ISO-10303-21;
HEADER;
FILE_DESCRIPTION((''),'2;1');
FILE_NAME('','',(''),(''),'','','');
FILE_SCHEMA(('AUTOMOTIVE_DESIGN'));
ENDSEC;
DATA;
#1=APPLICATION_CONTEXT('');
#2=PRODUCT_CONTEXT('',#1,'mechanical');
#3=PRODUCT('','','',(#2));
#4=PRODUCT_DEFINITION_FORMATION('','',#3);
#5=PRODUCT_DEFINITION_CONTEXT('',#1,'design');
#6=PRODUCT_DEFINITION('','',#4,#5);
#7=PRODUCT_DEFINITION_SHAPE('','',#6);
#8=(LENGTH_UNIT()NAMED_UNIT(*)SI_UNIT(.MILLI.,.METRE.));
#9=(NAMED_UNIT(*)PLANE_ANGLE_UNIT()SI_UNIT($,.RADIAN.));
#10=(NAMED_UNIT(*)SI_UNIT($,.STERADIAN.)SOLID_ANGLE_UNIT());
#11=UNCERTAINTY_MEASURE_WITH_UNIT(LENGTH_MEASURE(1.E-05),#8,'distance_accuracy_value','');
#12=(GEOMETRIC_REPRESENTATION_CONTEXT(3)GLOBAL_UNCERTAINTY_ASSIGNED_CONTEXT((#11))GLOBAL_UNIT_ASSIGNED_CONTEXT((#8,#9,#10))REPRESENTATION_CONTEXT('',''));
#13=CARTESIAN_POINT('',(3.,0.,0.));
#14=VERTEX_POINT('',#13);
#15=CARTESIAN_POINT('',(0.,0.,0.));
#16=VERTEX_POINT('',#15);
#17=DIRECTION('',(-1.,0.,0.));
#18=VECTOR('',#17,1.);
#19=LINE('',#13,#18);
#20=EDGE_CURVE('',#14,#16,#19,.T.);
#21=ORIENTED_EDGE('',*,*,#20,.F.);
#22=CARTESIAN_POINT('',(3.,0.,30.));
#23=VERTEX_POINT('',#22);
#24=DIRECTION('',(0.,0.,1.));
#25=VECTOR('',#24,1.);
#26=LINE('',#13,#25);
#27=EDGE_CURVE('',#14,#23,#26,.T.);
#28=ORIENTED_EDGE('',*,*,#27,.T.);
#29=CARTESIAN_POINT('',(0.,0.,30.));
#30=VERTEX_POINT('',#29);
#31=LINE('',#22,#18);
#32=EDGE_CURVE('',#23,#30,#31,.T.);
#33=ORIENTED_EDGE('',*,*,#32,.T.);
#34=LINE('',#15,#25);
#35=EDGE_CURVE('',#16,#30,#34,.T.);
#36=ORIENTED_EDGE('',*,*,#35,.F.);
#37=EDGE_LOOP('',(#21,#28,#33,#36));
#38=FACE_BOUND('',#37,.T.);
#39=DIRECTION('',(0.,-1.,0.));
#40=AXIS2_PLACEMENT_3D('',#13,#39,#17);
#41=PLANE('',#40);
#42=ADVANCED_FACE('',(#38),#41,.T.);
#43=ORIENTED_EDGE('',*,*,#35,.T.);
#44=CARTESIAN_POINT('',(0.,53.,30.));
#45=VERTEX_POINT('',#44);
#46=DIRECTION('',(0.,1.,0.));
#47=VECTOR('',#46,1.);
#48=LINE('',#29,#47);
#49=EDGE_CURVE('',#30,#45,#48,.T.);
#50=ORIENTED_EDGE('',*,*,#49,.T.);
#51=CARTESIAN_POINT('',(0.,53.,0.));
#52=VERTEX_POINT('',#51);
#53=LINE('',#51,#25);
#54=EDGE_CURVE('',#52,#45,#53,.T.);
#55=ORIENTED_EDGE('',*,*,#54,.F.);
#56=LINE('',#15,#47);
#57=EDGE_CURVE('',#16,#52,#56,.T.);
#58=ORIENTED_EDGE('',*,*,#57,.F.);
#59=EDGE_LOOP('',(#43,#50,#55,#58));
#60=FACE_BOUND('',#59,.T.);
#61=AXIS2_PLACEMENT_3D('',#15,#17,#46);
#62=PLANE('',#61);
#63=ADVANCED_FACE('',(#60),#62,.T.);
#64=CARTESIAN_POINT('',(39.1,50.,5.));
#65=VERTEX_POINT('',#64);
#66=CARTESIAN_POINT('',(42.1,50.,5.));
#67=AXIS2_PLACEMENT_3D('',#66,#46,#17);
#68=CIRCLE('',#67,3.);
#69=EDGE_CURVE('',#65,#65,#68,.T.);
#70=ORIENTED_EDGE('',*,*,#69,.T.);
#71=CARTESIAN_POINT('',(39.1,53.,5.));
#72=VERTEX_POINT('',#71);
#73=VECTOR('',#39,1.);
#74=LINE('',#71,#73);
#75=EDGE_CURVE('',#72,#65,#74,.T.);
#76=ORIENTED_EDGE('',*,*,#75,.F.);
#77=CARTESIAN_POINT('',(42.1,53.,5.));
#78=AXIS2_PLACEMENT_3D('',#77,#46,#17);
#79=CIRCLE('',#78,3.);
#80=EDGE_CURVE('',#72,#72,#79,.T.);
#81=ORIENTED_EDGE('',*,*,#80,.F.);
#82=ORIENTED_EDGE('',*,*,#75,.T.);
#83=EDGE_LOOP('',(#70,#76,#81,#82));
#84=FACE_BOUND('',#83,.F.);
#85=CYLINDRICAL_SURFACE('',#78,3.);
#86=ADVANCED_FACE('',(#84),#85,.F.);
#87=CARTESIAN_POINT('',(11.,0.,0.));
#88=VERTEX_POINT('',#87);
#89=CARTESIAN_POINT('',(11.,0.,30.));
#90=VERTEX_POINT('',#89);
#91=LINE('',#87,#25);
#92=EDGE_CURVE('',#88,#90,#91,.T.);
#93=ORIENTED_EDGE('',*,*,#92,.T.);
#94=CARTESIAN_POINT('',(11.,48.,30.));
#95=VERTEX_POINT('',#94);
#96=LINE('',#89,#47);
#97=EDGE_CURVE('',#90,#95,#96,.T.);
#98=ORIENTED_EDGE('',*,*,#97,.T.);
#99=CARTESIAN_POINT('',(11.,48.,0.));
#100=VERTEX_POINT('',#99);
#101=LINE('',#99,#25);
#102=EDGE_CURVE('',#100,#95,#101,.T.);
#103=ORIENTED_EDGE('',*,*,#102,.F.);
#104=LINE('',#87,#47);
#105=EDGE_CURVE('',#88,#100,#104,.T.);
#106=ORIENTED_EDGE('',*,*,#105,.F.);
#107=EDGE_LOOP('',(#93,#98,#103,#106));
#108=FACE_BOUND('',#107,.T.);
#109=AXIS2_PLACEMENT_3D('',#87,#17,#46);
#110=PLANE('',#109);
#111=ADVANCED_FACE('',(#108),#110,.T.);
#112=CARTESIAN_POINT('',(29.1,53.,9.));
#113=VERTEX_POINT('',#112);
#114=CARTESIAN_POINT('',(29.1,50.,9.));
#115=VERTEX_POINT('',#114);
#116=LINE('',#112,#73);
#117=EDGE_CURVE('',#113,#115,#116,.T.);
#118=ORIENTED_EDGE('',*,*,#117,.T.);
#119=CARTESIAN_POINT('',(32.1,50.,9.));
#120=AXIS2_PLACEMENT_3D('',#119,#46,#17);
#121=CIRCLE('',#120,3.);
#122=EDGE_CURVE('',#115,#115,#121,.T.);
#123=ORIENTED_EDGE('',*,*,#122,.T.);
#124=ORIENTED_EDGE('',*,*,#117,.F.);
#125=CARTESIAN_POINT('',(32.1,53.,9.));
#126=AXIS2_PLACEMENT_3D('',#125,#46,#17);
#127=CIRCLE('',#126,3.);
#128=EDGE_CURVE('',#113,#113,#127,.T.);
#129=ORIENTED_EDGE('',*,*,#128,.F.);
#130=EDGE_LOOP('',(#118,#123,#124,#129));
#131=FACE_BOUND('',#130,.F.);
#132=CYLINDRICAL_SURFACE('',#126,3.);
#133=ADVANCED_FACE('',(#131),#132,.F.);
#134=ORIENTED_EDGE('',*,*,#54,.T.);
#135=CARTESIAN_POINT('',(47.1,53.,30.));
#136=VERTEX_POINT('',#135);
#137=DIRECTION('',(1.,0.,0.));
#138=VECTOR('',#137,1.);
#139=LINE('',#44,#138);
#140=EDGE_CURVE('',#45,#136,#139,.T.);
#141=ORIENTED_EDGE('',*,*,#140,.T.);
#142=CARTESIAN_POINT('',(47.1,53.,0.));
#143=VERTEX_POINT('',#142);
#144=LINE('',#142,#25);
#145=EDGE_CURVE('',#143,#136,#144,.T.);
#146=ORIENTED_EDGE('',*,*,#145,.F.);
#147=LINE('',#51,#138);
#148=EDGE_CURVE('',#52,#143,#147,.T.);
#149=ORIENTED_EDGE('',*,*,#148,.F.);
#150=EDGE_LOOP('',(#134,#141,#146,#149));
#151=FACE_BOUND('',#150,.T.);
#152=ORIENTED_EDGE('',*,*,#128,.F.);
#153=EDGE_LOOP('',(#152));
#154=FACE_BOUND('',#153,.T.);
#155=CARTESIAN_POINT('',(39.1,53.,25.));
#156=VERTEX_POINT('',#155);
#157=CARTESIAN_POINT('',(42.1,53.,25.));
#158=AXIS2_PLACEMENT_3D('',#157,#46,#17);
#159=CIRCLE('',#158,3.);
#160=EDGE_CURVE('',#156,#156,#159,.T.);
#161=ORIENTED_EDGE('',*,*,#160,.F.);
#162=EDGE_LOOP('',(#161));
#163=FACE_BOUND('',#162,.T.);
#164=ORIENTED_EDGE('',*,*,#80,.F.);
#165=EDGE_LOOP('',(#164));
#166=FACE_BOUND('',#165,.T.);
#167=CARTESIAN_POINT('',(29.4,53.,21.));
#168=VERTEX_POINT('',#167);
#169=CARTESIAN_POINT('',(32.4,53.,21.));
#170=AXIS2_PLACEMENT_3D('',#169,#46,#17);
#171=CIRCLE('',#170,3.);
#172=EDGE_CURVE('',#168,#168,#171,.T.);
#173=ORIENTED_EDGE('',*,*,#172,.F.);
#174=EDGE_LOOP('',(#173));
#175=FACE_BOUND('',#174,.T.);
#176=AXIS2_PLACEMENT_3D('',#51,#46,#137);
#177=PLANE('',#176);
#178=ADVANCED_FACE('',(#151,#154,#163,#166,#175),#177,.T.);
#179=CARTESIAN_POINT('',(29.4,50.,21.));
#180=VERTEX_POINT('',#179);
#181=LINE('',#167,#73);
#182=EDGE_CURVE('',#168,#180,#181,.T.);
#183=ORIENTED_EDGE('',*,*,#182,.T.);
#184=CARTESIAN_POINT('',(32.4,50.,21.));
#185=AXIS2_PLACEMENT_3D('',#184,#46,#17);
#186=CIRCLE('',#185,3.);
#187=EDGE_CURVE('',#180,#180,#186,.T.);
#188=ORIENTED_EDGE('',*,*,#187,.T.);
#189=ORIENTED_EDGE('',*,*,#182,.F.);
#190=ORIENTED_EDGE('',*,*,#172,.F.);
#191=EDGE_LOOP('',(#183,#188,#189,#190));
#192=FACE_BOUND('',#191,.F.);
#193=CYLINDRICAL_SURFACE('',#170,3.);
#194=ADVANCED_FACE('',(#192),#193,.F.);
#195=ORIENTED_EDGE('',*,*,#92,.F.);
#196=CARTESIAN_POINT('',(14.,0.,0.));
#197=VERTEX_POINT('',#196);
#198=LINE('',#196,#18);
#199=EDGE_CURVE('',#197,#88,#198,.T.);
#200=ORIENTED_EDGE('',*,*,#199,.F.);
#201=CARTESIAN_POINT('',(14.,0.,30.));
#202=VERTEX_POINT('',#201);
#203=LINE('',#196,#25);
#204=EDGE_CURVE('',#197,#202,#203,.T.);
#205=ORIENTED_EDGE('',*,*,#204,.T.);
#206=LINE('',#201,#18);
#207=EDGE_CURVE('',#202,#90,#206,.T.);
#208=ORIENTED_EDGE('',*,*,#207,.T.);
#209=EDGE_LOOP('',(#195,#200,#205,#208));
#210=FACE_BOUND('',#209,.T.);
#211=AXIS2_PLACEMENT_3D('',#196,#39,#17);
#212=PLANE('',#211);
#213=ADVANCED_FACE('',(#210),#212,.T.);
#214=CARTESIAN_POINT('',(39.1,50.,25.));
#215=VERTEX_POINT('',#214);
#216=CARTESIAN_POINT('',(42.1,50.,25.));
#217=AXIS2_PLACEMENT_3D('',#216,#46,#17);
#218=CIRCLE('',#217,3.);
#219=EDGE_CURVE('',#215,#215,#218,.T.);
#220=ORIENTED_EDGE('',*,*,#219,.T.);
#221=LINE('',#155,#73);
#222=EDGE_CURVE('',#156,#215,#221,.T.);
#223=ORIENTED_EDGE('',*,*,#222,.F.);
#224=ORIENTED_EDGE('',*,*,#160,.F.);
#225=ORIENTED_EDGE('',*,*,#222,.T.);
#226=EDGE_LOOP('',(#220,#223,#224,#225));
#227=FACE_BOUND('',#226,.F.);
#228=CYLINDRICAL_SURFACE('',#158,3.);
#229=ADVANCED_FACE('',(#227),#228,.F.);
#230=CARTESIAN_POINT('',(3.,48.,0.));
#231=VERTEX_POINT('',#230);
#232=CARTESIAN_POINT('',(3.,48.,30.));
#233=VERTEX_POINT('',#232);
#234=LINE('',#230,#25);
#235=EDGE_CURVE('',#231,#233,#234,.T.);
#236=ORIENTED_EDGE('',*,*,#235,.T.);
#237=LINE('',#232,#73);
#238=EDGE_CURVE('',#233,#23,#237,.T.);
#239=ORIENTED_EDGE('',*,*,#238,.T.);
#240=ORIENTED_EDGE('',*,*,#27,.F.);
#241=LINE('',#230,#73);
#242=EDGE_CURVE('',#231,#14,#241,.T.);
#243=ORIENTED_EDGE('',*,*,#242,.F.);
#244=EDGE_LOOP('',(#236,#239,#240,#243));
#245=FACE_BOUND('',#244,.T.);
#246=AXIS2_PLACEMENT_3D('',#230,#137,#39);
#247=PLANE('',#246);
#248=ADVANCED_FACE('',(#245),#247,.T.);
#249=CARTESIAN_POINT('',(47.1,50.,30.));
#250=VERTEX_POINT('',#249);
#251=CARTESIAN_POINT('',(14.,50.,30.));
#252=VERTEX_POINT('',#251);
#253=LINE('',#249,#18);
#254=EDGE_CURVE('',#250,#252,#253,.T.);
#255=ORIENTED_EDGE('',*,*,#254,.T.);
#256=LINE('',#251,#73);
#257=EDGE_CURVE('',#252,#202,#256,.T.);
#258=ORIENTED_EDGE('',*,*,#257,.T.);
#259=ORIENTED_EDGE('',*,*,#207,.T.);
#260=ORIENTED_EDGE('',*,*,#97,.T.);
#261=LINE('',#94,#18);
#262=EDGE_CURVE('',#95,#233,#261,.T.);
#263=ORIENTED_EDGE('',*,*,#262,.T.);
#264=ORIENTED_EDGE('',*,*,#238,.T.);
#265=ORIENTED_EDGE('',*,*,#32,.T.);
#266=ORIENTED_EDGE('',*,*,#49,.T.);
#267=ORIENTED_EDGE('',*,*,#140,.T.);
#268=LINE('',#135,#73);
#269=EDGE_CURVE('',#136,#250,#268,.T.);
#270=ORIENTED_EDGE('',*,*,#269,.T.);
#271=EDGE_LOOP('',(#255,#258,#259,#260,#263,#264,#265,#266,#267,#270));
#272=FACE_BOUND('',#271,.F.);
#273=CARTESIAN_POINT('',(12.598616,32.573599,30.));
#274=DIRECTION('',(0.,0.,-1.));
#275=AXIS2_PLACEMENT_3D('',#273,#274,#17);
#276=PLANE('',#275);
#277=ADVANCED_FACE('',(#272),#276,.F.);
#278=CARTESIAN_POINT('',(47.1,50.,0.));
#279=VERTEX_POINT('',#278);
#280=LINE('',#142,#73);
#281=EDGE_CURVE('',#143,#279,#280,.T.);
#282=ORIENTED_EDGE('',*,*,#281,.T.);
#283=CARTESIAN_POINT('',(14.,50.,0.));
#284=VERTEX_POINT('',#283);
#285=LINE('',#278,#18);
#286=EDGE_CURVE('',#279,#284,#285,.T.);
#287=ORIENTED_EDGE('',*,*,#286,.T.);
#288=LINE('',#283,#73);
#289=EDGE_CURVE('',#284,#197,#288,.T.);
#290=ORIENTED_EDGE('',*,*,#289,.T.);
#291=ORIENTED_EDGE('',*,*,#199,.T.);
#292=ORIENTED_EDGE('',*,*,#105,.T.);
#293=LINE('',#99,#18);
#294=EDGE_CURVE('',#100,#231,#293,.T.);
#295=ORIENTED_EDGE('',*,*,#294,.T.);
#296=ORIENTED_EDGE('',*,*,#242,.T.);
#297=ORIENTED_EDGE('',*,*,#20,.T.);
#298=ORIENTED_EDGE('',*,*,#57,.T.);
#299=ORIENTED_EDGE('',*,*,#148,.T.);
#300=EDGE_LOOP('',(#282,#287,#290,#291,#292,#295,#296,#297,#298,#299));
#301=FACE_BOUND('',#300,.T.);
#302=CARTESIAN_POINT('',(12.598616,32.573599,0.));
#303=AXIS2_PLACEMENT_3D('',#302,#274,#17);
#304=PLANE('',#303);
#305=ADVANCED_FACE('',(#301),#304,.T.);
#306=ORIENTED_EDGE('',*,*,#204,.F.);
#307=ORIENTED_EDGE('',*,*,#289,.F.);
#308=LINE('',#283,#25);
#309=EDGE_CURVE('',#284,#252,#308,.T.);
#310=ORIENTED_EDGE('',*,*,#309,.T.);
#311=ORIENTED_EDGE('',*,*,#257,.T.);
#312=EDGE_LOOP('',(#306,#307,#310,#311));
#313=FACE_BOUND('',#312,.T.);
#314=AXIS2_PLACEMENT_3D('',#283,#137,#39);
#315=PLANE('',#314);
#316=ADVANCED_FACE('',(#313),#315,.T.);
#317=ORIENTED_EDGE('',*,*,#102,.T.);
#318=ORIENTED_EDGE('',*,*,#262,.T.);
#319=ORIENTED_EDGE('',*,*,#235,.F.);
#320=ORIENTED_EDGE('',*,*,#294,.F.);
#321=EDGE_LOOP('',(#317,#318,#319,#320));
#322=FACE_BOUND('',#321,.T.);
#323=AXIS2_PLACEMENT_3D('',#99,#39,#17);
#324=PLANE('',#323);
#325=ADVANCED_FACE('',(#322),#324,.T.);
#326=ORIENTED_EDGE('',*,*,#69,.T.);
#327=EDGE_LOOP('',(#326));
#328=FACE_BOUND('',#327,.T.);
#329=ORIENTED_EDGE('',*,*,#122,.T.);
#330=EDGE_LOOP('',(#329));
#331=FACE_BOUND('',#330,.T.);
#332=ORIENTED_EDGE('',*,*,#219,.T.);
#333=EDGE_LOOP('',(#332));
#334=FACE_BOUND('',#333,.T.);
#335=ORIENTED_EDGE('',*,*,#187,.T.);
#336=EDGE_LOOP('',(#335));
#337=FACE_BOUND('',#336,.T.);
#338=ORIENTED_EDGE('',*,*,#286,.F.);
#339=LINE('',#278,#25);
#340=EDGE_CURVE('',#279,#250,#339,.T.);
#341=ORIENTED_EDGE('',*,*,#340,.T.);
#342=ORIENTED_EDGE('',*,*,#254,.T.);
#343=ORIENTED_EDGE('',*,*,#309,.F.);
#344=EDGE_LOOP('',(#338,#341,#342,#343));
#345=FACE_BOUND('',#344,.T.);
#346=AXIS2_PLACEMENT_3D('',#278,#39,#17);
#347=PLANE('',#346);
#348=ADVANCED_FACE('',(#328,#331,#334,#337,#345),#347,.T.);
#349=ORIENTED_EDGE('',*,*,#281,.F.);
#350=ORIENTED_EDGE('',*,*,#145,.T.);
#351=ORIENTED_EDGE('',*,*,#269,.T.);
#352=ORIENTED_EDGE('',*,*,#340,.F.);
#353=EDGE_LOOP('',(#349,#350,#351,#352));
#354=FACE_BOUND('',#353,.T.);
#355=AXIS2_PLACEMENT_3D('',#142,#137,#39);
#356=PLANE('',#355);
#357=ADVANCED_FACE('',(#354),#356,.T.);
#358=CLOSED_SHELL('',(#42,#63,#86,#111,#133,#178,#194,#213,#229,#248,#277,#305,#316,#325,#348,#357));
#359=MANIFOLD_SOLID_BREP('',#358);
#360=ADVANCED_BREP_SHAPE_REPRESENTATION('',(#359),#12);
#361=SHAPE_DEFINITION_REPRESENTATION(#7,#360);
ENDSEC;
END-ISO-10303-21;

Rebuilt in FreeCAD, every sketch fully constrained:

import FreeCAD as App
import Part
import Sketcher

V = App.Vector

doc = App.newDocument("Part")
body = doc.addObject("PartDesign::Body", "Body")

# Sketch on XY plane
sketch1 = doc.addObject("Sketcher::SketchObject", "Sketch")
body.addObject(sketch1)
sketch1.AttachmentSupport = (doc.XY_Plane, [""])
sketch1.MapMode = "FlatFace"
sketch1.addGeometry([
    Part.LineSegment(V(0, 53, 0), V(0, 0, 0)),  # 0
    Part.LineSegment(V(0, 0, 0), V(3, 0, 0)),  # 1
    Part.LineSegment(V(3, 0, 0), V(3, 48, 0)),  # 2
    Part.LineSegment(V(3, 48, 0), V(11, 48, 0)),  # 3
    Part.LineSegment(V(11, 48, 0), V(11, 0, 0)),  # 4
    Part.LineSegment(V(11, 0, 0), V(14, 0, 0)),  # 5
    Part.LineSegment(V(14, 0, 0), V(14, 50, 0)),  # 6
    Part.LineSegment(V(14, 50, 0), V(47.1, 50, 0)),  # 7
    Part.LineSegment(V(47.1, 50, 0), V(47.1, 53, 0)),  # 8
    Part.LineSegment(V(47.1, 53, 0), V(0, 53, 0)),  # 9
], False)
sketch1.addConstraint([
    Sketcher.Constraint("Coincident", 0, 2, 1, 1),
    Sketcher.Constraint("Coincident", 1, 2, 2, 1),
    Sketcher.Constraint("Coincident", 2, 2, 3, 1),
    Sketcher.Constraint("Coincident", 3, 2, 4, 1),
    Sketcher.Constraint("Coincident", 4, 2, 5, 1),
    Sketcher.Constraint("Coincident", 5, 2, 6, 1),
    Sketcher.Constraint("Coincident", 6, 2, 7, 1),
    Sketcher.Constraint("Coincident", 7, 2, 8, 1),
    Sketcher.Constraint("Coincident", 8, 2, 9, 1),
    Sketcher.Constraint("Coincident", 9, 2, 0, 1),
    Sketcher.Constraint("Vertical", 0),
    Sketcher.Constraint("Horizontal", 1),
    Sketcher.Constraint("Vertical", 2),
    Sketcher.Constraint("Horizontal", 3),
    Sketcher.Constraint("Vertical", 4),
    Sketcher.Constraint("Horizontal", 5),
    Sketcher.Constraint("Vertical", 6),
    Sketcher.Constraint("Horizontal", 7),
    Sketcher.Constraint("Vertical", 8),
    Sketcher.Constraint("Horizontal", 9),
    Sketcher.Constraint("Coincident", 0, 2, -1, 1),
    Sketcher.Constraint("PointOnObject", 4, 2, -1),
    Sketcher.Constraint("Equal", 1, 5),
    Sketcher.Constraint("Equal", 5, 8),
    Sketcher.Constraint("DistanceX", 1, 1, 1, 2, 3.0),
    Sketcher.Constraint("DistanceX", 3, 1, 3, 2, 8.0),
    Sketcher.Constraint("DistanceY", 0, 2, 0, 1, 53.0),
    Sketcher.Constraint("DistanceY", 2, 1, 2, 2, 48.0),
    Sketcher.Constraint("DistanceX", 7, 1, 7, 2, 33.1),
])
pad1 = doc.addObject("PartDesign::Pad", "Pad")
body.addObject(pad1)
pad1.Profile = sketch1
pad1.Length = 30

# Sketch on XZ plane
sketch2 = doc.addObject("Sketcher::SketchObject", "Sketch001")
body.addObject(sketch2)
sketch2.AttachmentSupport = (doc.XZ_Plane, [""])
sketch2.MapMode = "FlatFace"
sketch2.AttachmentOffset = App.Placement(V(0, 0, -53), App.Rotation())
sketch2.addGeometry([
    Part.Circle(V(32.1, 9, 0), V(0, 0, 1), 3),
    Part.Circle(V(42.1, 25, 0), V(0, 0, 1), 3),
    Part.Circle(V(42.1, 5, 0), V(0, 0, 1), 3),
    Part.Circle(V(32.4, 21, 0), V(0, 0, 1), 3),
], False)
sketch2.addConstraint([
    Sketcher.Constraint("Equal", 0, 1),
    Sketcher.Constraint("Equal", 1, 2),
    Sketcher.Constraint("Equal", 2, 3),
    Sketcher.Constraint("Vertical", 1, 3, 2, 3),
    Sketcher.Constraint("Diameter", 0, 6.0),
    Sketcher.Constraint("DistanceY", -1, 1, 0, 3, 9.0),
    Sketcher.Constraint("DistanceY", -1, 1, 1, 3, 25.0),
    Sketcher.Constraint("DistanceY", -1, 1, 2, 3, 5.0),
    Sketcher.Constraint("DistanceY", -1, 1, 3, 3, 21.0),
    Sketcher.Constraint("DistanceX", 0, 3, 1, 3, 10.0),
    Sketcher.Constraint("DistanceX", -1, 1, 0, 3, 32.1),
    Sketcher.Constraint("DistanceX", -1, 1, 3, 3, 32.4),
])
pocket1 = doc.addObject("PartDesign::Pocket", "Pocket")
body.addObject(pocket1)
pocket1.Profile = sketch2
pocket1.Length = 5
pocket1.Reversed = True

doc.recompute()
